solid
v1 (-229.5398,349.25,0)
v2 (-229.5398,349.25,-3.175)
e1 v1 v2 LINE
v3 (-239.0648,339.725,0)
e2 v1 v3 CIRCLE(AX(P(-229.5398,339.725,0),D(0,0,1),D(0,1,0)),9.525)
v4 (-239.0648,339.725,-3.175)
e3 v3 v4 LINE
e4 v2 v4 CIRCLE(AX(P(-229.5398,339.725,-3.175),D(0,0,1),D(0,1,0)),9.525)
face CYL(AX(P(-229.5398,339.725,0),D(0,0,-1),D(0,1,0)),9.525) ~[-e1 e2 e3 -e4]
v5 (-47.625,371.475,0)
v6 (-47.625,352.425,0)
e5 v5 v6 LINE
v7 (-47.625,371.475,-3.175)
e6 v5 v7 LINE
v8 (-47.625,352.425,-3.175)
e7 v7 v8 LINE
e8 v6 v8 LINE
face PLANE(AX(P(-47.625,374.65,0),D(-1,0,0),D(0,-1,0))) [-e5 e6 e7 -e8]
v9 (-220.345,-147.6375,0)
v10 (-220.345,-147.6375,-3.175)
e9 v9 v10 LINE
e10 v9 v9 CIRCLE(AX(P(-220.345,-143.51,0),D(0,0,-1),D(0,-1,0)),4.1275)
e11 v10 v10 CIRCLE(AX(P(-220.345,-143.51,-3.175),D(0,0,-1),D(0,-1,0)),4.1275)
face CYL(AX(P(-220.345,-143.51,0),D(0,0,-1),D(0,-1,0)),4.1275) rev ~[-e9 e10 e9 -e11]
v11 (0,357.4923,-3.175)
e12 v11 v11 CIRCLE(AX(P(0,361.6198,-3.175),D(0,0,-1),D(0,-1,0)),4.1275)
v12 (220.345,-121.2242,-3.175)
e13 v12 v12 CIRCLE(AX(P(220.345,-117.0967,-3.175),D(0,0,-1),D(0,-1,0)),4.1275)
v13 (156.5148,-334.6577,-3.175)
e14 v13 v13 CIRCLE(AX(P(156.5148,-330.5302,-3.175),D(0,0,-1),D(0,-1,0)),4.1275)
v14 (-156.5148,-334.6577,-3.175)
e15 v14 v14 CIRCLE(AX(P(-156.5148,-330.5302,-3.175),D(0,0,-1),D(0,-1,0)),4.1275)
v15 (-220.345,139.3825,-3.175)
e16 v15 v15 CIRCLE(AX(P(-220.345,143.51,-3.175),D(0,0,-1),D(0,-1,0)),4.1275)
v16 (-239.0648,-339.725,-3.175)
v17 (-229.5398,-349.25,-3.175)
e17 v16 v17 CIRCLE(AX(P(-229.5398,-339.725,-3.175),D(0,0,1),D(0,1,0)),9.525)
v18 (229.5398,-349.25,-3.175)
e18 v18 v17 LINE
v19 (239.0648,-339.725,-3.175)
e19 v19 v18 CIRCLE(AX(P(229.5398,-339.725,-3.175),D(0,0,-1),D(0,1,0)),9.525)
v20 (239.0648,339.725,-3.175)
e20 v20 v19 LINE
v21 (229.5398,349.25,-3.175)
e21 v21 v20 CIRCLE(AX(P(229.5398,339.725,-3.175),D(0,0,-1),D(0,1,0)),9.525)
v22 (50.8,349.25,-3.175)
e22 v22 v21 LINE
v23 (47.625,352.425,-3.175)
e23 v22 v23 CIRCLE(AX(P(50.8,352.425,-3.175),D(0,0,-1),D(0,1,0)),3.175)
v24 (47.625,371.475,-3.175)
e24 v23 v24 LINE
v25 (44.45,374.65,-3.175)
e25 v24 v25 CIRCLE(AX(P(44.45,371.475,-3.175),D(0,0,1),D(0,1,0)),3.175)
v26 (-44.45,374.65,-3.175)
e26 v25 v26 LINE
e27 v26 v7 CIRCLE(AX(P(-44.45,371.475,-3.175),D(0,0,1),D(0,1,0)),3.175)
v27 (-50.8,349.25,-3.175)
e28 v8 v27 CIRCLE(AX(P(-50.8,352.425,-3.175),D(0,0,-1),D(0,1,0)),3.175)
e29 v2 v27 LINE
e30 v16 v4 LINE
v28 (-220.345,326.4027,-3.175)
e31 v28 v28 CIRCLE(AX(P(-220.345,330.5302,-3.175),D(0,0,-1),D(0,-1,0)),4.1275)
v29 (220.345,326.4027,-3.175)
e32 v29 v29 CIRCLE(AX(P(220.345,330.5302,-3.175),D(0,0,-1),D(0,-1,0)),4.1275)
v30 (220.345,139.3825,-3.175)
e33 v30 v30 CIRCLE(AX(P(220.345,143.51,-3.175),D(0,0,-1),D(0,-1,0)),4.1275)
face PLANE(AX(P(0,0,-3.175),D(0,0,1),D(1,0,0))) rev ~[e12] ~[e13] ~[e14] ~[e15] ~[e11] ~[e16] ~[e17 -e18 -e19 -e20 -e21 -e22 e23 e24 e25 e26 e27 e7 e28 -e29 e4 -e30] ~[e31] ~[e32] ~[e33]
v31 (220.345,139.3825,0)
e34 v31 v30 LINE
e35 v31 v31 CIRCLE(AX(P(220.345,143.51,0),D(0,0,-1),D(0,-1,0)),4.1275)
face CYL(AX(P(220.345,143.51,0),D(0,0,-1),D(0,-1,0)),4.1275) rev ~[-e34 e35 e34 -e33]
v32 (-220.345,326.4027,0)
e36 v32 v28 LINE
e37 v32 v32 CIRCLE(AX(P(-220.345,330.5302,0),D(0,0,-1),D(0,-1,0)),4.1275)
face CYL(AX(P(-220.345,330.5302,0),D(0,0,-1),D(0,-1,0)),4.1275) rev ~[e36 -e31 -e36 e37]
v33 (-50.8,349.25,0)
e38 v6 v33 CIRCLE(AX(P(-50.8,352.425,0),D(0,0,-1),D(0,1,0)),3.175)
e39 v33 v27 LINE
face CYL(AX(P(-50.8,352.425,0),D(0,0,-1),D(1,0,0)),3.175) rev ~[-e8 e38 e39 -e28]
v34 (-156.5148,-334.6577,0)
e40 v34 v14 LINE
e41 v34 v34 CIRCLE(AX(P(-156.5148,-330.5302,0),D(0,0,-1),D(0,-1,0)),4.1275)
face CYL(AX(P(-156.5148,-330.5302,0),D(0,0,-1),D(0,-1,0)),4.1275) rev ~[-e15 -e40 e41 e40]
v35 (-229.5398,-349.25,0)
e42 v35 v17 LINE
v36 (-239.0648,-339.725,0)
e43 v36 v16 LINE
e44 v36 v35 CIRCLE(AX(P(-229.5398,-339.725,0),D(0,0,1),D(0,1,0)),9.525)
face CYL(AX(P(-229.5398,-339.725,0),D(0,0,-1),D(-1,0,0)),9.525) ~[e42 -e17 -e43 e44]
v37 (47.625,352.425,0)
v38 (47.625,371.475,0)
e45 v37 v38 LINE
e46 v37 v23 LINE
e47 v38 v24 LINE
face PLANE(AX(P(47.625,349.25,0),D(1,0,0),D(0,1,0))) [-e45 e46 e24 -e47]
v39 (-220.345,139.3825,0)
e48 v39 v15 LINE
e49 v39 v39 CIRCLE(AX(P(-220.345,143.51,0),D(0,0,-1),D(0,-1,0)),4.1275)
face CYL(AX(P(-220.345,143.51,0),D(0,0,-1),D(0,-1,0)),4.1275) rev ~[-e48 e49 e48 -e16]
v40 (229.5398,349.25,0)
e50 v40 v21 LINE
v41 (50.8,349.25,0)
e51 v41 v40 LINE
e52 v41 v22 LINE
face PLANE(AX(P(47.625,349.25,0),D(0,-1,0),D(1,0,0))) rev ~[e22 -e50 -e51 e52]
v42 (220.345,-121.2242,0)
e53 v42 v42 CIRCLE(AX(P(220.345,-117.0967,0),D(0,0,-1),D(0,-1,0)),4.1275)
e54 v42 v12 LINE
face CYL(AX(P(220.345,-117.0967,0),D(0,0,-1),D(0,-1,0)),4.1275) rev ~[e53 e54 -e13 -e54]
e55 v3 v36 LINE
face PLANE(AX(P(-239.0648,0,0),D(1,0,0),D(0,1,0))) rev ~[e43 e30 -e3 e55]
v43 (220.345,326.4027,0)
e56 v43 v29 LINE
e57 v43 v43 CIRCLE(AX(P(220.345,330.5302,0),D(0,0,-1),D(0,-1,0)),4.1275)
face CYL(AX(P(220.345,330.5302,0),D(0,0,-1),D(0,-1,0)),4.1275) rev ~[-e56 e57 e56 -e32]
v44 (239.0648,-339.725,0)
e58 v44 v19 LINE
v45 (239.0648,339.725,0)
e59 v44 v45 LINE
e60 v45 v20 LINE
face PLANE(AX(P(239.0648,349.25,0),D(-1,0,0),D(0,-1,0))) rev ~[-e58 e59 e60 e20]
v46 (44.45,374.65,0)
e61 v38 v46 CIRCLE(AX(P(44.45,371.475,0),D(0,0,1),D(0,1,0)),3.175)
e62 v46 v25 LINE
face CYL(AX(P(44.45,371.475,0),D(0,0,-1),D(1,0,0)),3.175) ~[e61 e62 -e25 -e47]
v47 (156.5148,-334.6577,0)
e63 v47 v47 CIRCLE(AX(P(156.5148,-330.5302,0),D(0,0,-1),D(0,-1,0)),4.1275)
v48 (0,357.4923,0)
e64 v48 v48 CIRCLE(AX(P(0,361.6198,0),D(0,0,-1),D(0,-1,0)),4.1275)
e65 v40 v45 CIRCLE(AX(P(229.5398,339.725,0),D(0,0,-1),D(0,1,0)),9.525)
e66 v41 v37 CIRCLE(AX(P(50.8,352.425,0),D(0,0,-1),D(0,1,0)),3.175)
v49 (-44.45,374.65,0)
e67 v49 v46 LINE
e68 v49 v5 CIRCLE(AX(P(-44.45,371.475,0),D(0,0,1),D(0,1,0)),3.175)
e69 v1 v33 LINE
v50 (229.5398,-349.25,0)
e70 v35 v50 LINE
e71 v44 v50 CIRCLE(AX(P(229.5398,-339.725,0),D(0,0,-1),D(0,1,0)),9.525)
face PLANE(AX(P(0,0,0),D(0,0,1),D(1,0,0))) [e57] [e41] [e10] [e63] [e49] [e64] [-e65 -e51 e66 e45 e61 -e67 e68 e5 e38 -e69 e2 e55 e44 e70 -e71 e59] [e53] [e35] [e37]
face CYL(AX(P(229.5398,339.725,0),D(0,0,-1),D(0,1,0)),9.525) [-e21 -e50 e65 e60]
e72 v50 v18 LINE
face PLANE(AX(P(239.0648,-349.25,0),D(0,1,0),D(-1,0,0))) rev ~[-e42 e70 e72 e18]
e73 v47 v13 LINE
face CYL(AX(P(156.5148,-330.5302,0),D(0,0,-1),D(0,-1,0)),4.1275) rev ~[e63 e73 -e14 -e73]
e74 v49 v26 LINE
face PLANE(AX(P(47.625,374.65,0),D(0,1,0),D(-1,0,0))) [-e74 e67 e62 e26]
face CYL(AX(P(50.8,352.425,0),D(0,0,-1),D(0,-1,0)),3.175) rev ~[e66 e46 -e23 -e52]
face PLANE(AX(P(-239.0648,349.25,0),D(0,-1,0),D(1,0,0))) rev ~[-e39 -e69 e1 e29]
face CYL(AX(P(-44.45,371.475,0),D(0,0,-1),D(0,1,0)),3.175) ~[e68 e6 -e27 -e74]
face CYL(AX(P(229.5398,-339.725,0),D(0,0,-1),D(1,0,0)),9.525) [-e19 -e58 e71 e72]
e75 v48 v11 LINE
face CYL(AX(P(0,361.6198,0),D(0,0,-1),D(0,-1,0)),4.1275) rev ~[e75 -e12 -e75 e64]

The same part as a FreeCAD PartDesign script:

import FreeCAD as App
import Part
import Sketcher

V = App.Vector
Q = App.Units.Quantity


def edges_at(feature, points):
    """Names of the edges that pass closest to the given points."""
    edges = feature.Shape.Edges
    near = lambda p: min(range(len(edges)), key=lambda i: edges[i].distToShape(Part.Vertex(*p))[0])
    return sorted({f"Edge{near(p) + 1}" for p in points})

doc = App.newDocument("Part")
params = doc.addObject("Spreadsheet::Sheet", "Params")
for row, (alias, value) in enumerate([
    ("sketch1_height", "1 in"),
    ("sketch1_height2", "27.5 in"),
    ("sketch1_width", "3.75 in"),
    ("sketch1_width2", "18.824 in"),
    ("pad1_length", "0.125 in"),
    ("sketch2_diameter", "0.325 in"),
    ("hole_diameter", "0.325 in"),
    ("fillet_radius", "0.375 in"),
    ("fillet2_radius", "0.125 in"),
], start=1):
    params.set(f"A{row}", alias)
    params.set(f"B{row}", "=" + value)
    params.setAlias(f"B{row}", alias)

body = doc.addObject("PartDesign::Body", "Body")

# Sketch on XY plane
sketch1 = body.newObject("Sketcher::SketchObject", "Sketch")
sketch1.AttachmentSupport = (doc.getObject("XY_Plane"), [""])
sketch1.MapMode = "FlatFace"
sketch1.addGeometry(Part.LineSegment(V(48, 375, 0), V(-48, 375, 0)), False)
sketch1.addGeometry(Part.LineSegment(V(-48, 375, 0), V(-48, 349, 0)), False)
sketch1.addGeometry(Part.LineSegment(V(-48, 349, 0), V(-239, 349, 0)), False)
sketch1.addGeometry(Part.LineSegment(V(-239, 349, 0), V(-239, -349, 0)), False)
sketch1.addGeometry(Part.LineSegment(V(-239, -349, 0), V(239, -349, 0)), False)
sketch1.addGeometry(Part.LineSegment(V(239, -349, 0), V(239, 349, 0)), False)
sketch1.addGeometry(Part.LineSegment(V(239, 349, 0), V(48, 349, 0)), False)
sketch1.addGeometry(Part.LineSegment(V(48, 349, 0), V(48, 375, 0)), False)
sketch1.addConstraint(Sketcher.Constraint("Coincident", 0, 2, 1, 1))
sketch1.addConstraint(Sketcher.Constraint("Coincident", 1, 2, 2, 1))
sketch1.addConstraint(Sketcher.Constraint("Coincident", 2, 2, 3, 1))
sketch1.addConstraint(Sketcher.Constraint("Coincident", 3, 2, 4, 1))
sketch1.addConstraint(Sketcher.Constraint("Coincident", 4, 2, 5, 1))
sketch1.addConstraint(Sketcher.Constraint("Coincident", 5, 2, 6, 1))
sketch1.addConstraint(Sketcher.Constraint("Coincident", 6, 2, 7, 1))
sketch1.addConstraint(Sketcher.Constraint("Coincident", 7, 2, 0, 1))
sketch1.addConstraint(Sketcher.Constraint("Horizontal", 0))
sketch1.addConstraint(Sketcher.Constraint("Vertical", 1))
sketch1.addConstraint(Sketcher.Constraint("Horizontal", 2))
sketch1.addConstraint(Sketcher.Constraint("Vertical", 3))
sketch1.addConstraint(Sketcher.Constraint("Horizontal", 4))
sketch1.addConstraint(Sketcher.Constraint("Vertical", 5))
sketch1.addConstraint(Sketcher.Constraint("Horizontal", 6))
sketch1.addConstraint(Sketcher.Constraint("Vertical", 7))
sketch1.addConstraint(Sketcher.Constraint("Symmetric", 2, 2, 4, 2, -1, 1))
sketch1.addConstraint(Sketcher.Constraint("Symmetric", 1, 2, 6, 2, -2))
sketch1.addConstraint(Sketcher.Constraint("DistanceY", 1, 2, 1, 1, Q("1 in")))
sketch1.addConstraint(Sketcher.Constraint("DistanceY", 3, 2, 3, 1, Q("27.5 in")))
sketch1.addConstraint(Sketcher.Constraint("DistanceX", 0, 2, 0, 1, Q("3.75 in")))
sketch1.addConstraint(Sketcher.Constraint("DistanceX", 4, 1, 4, 2, Q("18.824 in")))
sketch1.setExpression("Constraints[18]", "Params.sketch1_height")
sketch1.setExpression("Constraints[19]", "Params.sketch1_height2")
sketch1.setExpression("Constraints[20]", "Params.sketch1_width")
sketch1.setExpression("Constraints[21]", "Params.sketch1_width2")
pad1 = body.newObject("PartDesign::Pad", "Pad")
pad1.Profile = sketch1
pad1.setExpression("Length", "Params.pad1_length")
pad1.Reversed = True

# Sketch on XY plane
sketch2 = body.newObject("Sketcher::SketchObject", "Sketch001")
sketch2.AttachmentSupport = (doc.getObject("XY_Plane"), [""])
sketch2.MapMode = "FlatFace"
sketch2.addGeometry(Part.Circle(V(-156.5, -330.5, 0), V(0, 0, 1), 4.1), False)
sketch2.addGeometry(Part.Circle(V(156.5, -330.5, 0), V(0, 0, 1), 4.1), False)
sketch2.addGeometry(Part.Circle(V(220.3, 143.5, 0), V(0, 0, 1), 4.1), False)
sketch2.addGeometry(Part.Circle(V(220.3, -117.1, 0), V(0, 0, 1), 4.1), False)
sketch2.addGeometry(Part.Circle(V(-220.3, 143.5, 0), V(0, 0, 1), 4.1), False)
sketch2.addGeometry(Part.Circle(V(-220.3, -143.5, 0), V(0, 0, 1), 4.1), False)
sketch2.addGeometry(Part.Circle(V(-220.3, 330.5, 0), V(0, 0, 1), 4.1), False)
sketch2.addGeometry(Part.Circle(V(220.3, 330.5, 0), V(0, 0, 1), 4.1), False)
sketch2.addGeometry(Part.Circle(V(0, 361.6, 0), V(0, 0, 1), 4.1), False)
sketch2.addConstraint(Sketcher.Constraint("Equal", 0, 1))
sketch2.addConstraint(Sketcher.Constraint("Equal", 1, 2))
sketch2.addConstraint(Sketcher.Constraint("Equal", 2, 3))
sketch2.addConstraint(Sketcher.Constraint("Equal", 3, 4))
sketch2.addConstraint(Sketcher.Constraint("Equal", 4, 5))
sketch2.addConstraint(Sketcher.Constraint("Equal", 5, 6))
sketch2.addConstraint(Sketcher.Constraint("Equal", 6, 7))
sketch2.addConstraint(Sketcher.Constraint("Equal", 7, 8))
sketch2.addConstraint(Sketcher.Constraint("Symmetric", 2, 3, 5, 3, -1, 1))
sketch2.addConstraint(Sketcher.Constraint("Symmetric", 0, 3, 1, 3, -2))
sketch2.addConstraint(Sketcher.Constraint("Symmetric", 2, 3, 4, 3, -2))
sketch2.addConstraint(Sketcher.Constraint("Symmetric", 6, 3, 7, 3, -2))
sketch2.addConstraint(Sketcher.Constraint("PointOnObject", 8, 3, -2))
sketch2.addConstraint(Sketcher.Constraint("Vertical", 2, 3, 3, 3))
sketch2.addConstraint(Sketcher.Constraint("Vertical", 5, 3, 6, 3))
sketch2.addConstraint(Sketcher.Constraint("Diameter", 0, Q("0.325 in")))
sketch2.addConstraint(Sketcher.Constraint("DistanceY", 5, 3, 4, 3, Q("11.3 in")))
sketch2.addConstraint(Sketcher.Constraint("DistanceX", 4, 3, 2, 3, Q("17.35 in")))
sketch2.addConstraint(Sketcher.Constraint("DistanceX", 0, 3, -1, 1, Q("6.162 in")))
sketch2.addConstraint(Sketcher.Constraint("DistanceY", 0, 3, -1, 1, Q("13.013 in")))
sketch2.addConstraint(Sketcher.Constraint("DistanceY", -1, 1, 6, 3, Q("13.013 in")))
sketch2.addConstraint(Sketcher.Constraint("DistanceY", -1, 1, 8, 3, Q("14.237 in")))
sketch2.addConstraint(Sketcher.Constraint("DistanceY", 3, 3, -1, 1, Q("4.6101 in")))
sketch2.setExpression("Constraints[15]", "Params.sketch2_diameter")
doc.recompute()
hole = body.newObject("PartDesign::Hole", "Hole")
hole.Profile = sketch2
hole.ThreadType = "None"
hole.setExpression("Diameter", "Params.hole_diameter")
hole.DepthType = "ThroughAll"
doc.recompute()

fillet = body.newObject("PartDesign::Fillet", "Fillet")
fillet.Base = (hole, edges_at(hole, [
    (-239.065, 349.25, -1.587),
    (239.065, 349.25, -1.587),
    (239.065, -349.25, -1.587),
    (-239.065, -349.25, -1.587),
]))
fillet.setExpression("Radius", "Params.fillet_radius")
doc.recompute()

fillet2 = body.newObject("PartDesign::Fillet", "Fillet001")
fillet2.Base = (fillet, edges_at(fillet, [
    (47.625, 374.65, -1.587),
    (47.625, 349.25, -1.587),
    (-47.625, 374.65, -1.587),
    (-47.625, 349.25, -1.587),
]))
fillet2.setExpression("Radius", "Params.fillet2_radius")

doc.recompute()
